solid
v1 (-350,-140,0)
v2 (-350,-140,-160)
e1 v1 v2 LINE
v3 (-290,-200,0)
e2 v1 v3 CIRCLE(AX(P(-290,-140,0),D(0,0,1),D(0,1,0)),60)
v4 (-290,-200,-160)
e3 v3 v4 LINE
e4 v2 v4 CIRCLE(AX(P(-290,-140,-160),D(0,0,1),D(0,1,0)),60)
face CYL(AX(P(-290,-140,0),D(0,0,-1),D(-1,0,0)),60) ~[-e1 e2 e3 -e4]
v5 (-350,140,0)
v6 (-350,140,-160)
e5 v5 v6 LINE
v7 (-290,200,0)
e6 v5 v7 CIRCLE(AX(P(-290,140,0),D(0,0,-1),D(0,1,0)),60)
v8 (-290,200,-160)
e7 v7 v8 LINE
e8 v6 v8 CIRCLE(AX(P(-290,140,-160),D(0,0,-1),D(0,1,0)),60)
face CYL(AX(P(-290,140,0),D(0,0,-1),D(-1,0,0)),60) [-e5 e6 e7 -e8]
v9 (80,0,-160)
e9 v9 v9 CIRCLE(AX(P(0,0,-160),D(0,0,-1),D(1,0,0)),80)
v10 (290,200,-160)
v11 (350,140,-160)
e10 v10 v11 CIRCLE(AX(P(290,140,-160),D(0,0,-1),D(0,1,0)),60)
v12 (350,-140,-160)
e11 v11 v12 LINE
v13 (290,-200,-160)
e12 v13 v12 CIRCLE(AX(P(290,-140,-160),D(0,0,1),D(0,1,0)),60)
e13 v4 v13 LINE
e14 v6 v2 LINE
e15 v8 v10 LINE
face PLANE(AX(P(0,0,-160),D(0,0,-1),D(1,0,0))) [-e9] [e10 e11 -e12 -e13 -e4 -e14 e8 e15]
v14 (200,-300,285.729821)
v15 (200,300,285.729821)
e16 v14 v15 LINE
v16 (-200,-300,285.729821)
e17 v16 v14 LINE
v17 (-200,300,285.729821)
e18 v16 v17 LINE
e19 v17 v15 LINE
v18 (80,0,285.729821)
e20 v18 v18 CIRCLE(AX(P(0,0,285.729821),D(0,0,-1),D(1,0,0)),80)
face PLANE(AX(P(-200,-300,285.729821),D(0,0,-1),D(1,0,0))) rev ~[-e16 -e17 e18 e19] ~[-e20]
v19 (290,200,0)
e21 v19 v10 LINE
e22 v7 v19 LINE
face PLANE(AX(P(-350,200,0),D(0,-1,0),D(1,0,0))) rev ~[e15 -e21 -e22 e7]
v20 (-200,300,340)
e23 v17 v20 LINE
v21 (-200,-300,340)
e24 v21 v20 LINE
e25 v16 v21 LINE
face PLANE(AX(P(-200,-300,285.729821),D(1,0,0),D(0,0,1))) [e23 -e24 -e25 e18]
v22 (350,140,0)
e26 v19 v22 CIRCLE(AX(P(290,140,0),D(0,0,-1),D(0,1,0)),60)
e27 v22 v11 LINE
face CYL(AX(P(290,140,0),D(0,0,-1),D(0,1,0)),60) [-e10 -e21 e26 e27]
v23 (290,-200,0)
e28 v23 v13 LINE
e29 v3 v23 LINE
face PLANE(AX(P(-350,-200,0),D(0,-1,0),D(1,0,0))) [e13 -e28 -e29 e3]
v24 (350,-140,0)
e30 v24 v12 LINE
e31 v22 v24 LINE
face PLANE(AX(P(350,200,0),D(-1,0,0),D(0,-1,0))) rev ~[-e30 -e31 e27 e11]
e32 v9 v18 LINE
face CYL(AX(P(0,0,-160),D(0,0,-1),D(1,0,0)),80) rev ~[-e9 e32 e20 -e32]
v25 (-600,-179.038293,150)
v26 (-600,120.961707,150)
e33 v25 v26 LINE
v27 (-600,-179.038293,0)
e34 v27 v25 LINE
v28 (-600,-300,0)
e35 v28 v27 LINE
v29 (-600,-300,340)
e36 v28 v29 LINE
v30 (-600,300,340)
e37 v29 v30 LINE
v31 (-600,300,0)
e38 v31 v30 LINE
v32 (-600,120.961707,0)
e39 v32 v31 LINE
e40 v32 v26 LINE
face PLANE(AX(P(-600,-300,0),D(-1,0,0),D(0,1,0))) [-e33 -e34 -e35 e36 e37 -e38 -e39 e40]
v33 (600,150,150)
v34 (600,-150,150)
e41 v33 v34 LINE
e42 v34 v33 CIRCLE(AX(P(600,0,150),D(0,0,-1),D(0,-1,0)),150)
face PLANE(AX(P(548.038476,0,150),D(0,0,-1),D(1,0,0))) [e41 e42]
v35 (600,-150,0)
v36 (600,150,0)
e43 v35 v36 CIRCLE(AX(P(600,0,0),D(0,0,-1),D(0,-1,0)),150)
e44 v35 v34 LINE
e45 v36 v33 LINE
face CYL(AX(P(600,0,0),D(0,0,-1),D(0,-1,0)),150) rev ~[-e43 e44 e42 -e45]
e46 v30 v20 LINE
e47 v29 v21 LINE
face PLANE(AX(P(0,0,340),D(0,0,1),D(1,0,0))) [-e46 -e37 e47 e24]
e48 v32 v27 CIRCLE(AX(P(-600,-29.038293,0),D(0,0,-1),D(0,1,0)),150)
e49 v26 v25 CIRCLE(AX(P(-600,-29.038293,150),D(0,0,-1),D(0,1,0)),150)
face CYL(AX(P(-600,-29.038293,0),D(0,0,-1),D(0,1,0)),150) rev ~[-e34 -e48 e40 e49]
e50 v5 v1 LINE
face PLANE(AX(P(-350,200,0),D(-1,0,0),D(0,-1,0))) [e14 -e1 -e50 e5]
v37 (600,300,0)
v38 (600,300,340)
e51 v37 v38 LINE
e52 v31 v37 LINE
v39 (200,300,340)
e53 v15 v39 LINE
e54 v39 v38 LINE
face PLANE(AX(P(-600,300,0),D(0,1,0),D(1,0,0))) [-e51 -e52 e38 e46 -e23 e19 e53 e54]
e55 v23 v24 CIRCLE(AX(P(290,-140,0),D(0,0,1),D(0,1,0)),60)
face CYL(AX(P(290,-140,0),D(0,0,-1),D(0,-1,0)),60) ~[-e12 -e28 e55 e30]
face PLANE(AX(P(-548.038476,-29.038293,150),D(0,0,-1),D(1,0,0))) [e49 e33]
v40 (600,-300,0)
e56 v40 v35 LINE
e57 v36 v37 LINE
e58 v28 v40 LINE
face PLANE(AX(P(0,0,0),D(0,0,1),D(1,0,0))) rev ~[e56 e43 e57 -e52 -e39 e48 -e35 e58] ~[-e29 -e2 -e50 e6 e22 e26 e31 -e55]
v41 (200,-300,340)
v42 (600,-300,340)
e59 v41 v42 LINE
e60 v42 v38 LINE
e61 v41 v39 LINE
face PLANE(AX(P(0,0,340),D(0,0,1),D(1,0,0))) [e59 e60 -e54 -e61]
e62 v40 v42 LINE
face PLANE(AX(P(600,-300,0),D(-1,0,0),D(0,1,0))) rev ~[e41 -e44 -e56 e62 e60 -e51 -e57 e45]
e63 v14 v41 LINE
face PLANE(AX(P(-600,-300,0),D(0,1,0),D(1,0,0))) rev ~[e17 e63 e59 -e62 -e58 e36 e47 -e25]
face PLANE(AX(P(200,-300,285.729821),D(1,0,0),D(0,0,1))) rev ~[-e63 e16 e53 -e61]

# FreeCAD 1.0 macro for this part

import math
import FreeCAD as App
import Part
import Sketcher

V = App.Vector


def edges_at(feature, points):
    """Names of the edges that pass closest to the given points."""
    edges = feature.Shape.Edges
    near = lambda p: min(range(len(edges)), key=lambda i: edges[i].distToShape(Part.Vertex(*p))[0])
    return sorted({f"Edge{near(p) + 1}" for p in points})

doc = App.newDocument("Part")
body = doc.addObject("PartDesign::Body", "Body")

# Sketch on XY plane
sketch1 = body.newObject("Sketcher::SketchObject", "Sketch")
sketch1.AttachmentSupport = (doc.getObject("XY_Plane"), [""])
sketch1.MapMode = "FlatFace"
sketch1.addGeometry([
    Part.LineSegment(V(-600, 300, 0), V(-600, -300, 0)),
    Part.LineSegment(V(-600, -300, 0), V(600, -300, 0)),
    Part.LineSegment(V(600, -300, 0), V(600, 300, 0)),
    Part.LineSegment(V(600, 300, 0), V(-600, 300, 0)),
], False)
sketch1.addConstraint([
    Sketcher.Constraint("Coincident", 0, 2, 1, 1),
    Sketcher.Constraint("Coincident", 1, 2, 2, 1),
    Sketcher.Constraint("Coincident", 2, 2, 3, 1),
    Sketcher.Constraint("Coincident", 3, 2, 0, 1),
    Sketcher.Constraint("Vertical", 0),
    Sketcher.Constraint("Horizontal", 1),
    Sketcher.Constraint("Vertical", 2),
    Sketcher.Constraint("Horizontal", 3),
    Sketcher.Constraint("Symmetric", 0, 2, 2, 2, -1, 1),
    Sketcher.Constraint("DistanceX", 1, 1, 1, 2, 1200.0),
    Sketcher.Constraint("DistanceY", 0, 2, 0, 1, 600.0),
])
pad1 = body.newObject("PartDesign::Pad", "Pad")
pad1.Profile = sketch1
pad1.Length = 340

# Sketch on XZ plane
sketch2 = body.newObject("Sketcher::SketchObject", "Sketch001")
sketch2.AttachmentSupport = (doc.getObject("XZ_Plane"), [""])
sketch2.MapMode = "FlatFace"
sketch2.AttachmentOffset = App.Placement(V(0, 0, 300), App.Rotation())
sketch2.addGeometry([
    Part.LineSegment(V(-200, 340, 0), V(-200, 286, 0)),
    Part.LineSegment(V(-200, 286, 0), V(200, 286, 0)),
    Part.LineSegment(V(200, 286, 0), V(200, 340, 0)),
    Part.LineSegment(V(200, 340, 0), V(-200, 340, 0)),
], False)
sketch2.addConstraint([
    Sketcher.Constraint("Coincident", 0, 2, 1, 1),
    Sketcher.Constraint("Coincident", 1, 2, 2, 1),
    Sketcher.Constraint("Coincident", 2, 2, 3, 1),
    Sketcher.Constraint("Coincident", 3, 2, 0, 1),
    Sketcher.Constraint("Vertical", 0),
    Sketcher.Constraint("Horizontal", 1),
    Sketcher.Constraint("Vertical", 2),
    Sketcher.Constraint("Horizontal", 3),
    Sketcher.Constraint("DistanceX", 1, 1, 1, 2, 400.0),
    Sketcher.Constraint("DistanceX", 0, 2, -1, 1, 200.0),
    Sketcher.Constraint("DistanceY", -1, 1, 2, 2, 340.0),
    Sketcher.Constraint("DistanceY", 0, 2, 0, 1, 54.270179),
])
pocket1 = body.newObject("PartDesign::Pocket", "Pocket")
pocket1.Profile = sketch2
pocket1.Length = 600

# Sketch on XY plane
sketch3 = body.newObject("Sketcher::SketchObject", "Sketch002")
sketch3.AttachmentSupport = (doc.getObject("XY_Plane"), [""])
sketch3.MapMode = "FlatFace"
sketch3.addGeometry([
    Part.LineSegment(V(-350, -200, 0), V(-350, 200, 0)),
    Part.LineSegment(V(-350, 200, 0), V(350, 200, 0)),
    Part.LineSegment(V(350, 200, 0), V(350, -200, 0)),
    Part.LineSegment(V(350, -200, 0), V(-350, -200, 0)),
], False)
sketch3.addConstraint([
    Sketcher.Constraint("Coincident", 0, 2, 1, 1),
    Sketcher.Constraint("Coincident", 1, 2, 2, 1),
    Sketcher.Constraint("Coincident", 2, 2, 3, 1),
    Sketcher.Constraint("Coincident", 3, 2, 0, 1),
    Sketcher.Constraint("Vertical", 0),
    Sketcher.Constraint("Horizontal", 1),
    Sketcher.Constraint("Vertical", 2),
    Sketcher.Constraint("Horizontal", 3),
    Sketcher.Constraint("Symmetric", 0, 2, 2, 2, -1, 1),
    Sketcher.Constraint("DistanceX", 1, 1, 1, 2, 700.0),
    Sketcher.Constraint("DistanceY", 0, 1, 0, 2, 400.0),
])
pad2 = body.newObject("PartDesign::Pad", "Pad001")
pad2.Profile = sketch3
pad2.Length = 160
pad2.Reversed = True

# Sketch on XY plane
sketch4 = body.newObject("Sketcher::SketchObject", "Sketch003")
sketch4.AttachmentSupport = (doc.getObject("XY_Plane"), [""])
sketch4.MapMode = "FlatFace"
sketch4.AttachmentOffset = App.Placement(V(0, 0, -160), App.Rotation())
sketch4.addGeometry(Part.Circle(V(0, 0, 0), V(0, 0, 1), 80), False)
sketch4.addConstraint([
    Sketcher.Constraint("Coincident", 0, 3, -1, 1),
    Sketcher.Constraint("Diameter", 0, 160.0),
])
pocket2 = body.newObject("PartDesign::Pocket", "Pocket001")
pocket2.Profile = sketch4
pocket2.Type = "ThroughAll"
pocket2.Reversed = True

# Sketch on XY plane
sketch5 = body.newObject("Sketcher::SketchObject", "Sketch004")
sketch5.AttachmentSupport = (doc.getObject("XY_Plane"), [""])
sketch5.MapMode = "FlatFace"
sketch5.addGeometry([
    Part.LineSegment(V(600, 150, 0), V(600, -150, 0)),
    Part.ArcOfCircle(Part.Circle(V(600, 0, 0), V(0, 0, 1), 150), math.radians(90), math.radians(270)),
], False)
sketch5.addConstraint([
    Sketcher.Constraint("Coincident", 0, 1, 1, 1),
    Sketcher.Constraint("Coincident", 1, 2, 0, 2),
    Sketcher.Constraint("Vertical", 0),
    Sketcher.Constraint("PointOnObject", 1, 3, -1),
    Sketcher.Constraint("Vertical", 1, 3, 0, 1),
    Sketcher.Constraint("Radius", 1, 150.0),
    Sketcher.Constraint("DistanceX", -1, 1, 1, 3, 600.0),
])
pocket3 = body.newObject("PartDesign::Pocket", "Pocket002")
pocket3.Profile = sketch5
pocket3.Length = 150
pocket3.Reversed = True
doc.recompute()

fillet = body.newObject("PartDesign::Fillet", "Fillet")
fillet.Base = (pocket3, edges_at(pocket3, [
    (-350, 200, -80),
    (350, 200, -80),
    (350, -200, -80),
    (-350, -200, -80),
]))
fillet.Radius = 60

# Sketch on XY plane
sketch6 = body.newObject("Sketcher::SketchObject", "Sketch005")
sketch6.AttachmentSupport = (doc.getObject("XY_Plane"), [""])
sketch6.MapMode = "FlatFace"
sketch6.addGeometry([
    Part.ArcOfCircle(Part.Circle(V(-600, -29, 0), V(0, 0, 1), 150), math.radians(-90), math.radians(90)),
    Part.LineSegment(V(-600, -179, 0), V(-600, 121, 0)),
], False)
sketch6.addConstraint([
    Sketcher.Constraint("Coincident", 0, 1, 1, 1),
    Sketcher.Constraint("Coincident", 1, 2, 0, 2),
    Sketcher.Constraint("Vertical", 1),
    Sketcher.Constraint("Radius", 0, 150.0),
    Sketcher.Constraint("DistanceX", 0, 3, -1, 1, 600.0),
    Sketcher.Constraint("DistanceX", 0, 1, -1, 1, 600.0),
    Sketcher.Constraint("DistanceY", 0, 3, -1, 1, 29.038293),
])
pocket4 = body.newObject("PartDesign::Pocket", "Pocket003")
pocket4.Profile = sketch6
pocket4.Length = 150
pocket4.Reversed = True

doc.recompute()
